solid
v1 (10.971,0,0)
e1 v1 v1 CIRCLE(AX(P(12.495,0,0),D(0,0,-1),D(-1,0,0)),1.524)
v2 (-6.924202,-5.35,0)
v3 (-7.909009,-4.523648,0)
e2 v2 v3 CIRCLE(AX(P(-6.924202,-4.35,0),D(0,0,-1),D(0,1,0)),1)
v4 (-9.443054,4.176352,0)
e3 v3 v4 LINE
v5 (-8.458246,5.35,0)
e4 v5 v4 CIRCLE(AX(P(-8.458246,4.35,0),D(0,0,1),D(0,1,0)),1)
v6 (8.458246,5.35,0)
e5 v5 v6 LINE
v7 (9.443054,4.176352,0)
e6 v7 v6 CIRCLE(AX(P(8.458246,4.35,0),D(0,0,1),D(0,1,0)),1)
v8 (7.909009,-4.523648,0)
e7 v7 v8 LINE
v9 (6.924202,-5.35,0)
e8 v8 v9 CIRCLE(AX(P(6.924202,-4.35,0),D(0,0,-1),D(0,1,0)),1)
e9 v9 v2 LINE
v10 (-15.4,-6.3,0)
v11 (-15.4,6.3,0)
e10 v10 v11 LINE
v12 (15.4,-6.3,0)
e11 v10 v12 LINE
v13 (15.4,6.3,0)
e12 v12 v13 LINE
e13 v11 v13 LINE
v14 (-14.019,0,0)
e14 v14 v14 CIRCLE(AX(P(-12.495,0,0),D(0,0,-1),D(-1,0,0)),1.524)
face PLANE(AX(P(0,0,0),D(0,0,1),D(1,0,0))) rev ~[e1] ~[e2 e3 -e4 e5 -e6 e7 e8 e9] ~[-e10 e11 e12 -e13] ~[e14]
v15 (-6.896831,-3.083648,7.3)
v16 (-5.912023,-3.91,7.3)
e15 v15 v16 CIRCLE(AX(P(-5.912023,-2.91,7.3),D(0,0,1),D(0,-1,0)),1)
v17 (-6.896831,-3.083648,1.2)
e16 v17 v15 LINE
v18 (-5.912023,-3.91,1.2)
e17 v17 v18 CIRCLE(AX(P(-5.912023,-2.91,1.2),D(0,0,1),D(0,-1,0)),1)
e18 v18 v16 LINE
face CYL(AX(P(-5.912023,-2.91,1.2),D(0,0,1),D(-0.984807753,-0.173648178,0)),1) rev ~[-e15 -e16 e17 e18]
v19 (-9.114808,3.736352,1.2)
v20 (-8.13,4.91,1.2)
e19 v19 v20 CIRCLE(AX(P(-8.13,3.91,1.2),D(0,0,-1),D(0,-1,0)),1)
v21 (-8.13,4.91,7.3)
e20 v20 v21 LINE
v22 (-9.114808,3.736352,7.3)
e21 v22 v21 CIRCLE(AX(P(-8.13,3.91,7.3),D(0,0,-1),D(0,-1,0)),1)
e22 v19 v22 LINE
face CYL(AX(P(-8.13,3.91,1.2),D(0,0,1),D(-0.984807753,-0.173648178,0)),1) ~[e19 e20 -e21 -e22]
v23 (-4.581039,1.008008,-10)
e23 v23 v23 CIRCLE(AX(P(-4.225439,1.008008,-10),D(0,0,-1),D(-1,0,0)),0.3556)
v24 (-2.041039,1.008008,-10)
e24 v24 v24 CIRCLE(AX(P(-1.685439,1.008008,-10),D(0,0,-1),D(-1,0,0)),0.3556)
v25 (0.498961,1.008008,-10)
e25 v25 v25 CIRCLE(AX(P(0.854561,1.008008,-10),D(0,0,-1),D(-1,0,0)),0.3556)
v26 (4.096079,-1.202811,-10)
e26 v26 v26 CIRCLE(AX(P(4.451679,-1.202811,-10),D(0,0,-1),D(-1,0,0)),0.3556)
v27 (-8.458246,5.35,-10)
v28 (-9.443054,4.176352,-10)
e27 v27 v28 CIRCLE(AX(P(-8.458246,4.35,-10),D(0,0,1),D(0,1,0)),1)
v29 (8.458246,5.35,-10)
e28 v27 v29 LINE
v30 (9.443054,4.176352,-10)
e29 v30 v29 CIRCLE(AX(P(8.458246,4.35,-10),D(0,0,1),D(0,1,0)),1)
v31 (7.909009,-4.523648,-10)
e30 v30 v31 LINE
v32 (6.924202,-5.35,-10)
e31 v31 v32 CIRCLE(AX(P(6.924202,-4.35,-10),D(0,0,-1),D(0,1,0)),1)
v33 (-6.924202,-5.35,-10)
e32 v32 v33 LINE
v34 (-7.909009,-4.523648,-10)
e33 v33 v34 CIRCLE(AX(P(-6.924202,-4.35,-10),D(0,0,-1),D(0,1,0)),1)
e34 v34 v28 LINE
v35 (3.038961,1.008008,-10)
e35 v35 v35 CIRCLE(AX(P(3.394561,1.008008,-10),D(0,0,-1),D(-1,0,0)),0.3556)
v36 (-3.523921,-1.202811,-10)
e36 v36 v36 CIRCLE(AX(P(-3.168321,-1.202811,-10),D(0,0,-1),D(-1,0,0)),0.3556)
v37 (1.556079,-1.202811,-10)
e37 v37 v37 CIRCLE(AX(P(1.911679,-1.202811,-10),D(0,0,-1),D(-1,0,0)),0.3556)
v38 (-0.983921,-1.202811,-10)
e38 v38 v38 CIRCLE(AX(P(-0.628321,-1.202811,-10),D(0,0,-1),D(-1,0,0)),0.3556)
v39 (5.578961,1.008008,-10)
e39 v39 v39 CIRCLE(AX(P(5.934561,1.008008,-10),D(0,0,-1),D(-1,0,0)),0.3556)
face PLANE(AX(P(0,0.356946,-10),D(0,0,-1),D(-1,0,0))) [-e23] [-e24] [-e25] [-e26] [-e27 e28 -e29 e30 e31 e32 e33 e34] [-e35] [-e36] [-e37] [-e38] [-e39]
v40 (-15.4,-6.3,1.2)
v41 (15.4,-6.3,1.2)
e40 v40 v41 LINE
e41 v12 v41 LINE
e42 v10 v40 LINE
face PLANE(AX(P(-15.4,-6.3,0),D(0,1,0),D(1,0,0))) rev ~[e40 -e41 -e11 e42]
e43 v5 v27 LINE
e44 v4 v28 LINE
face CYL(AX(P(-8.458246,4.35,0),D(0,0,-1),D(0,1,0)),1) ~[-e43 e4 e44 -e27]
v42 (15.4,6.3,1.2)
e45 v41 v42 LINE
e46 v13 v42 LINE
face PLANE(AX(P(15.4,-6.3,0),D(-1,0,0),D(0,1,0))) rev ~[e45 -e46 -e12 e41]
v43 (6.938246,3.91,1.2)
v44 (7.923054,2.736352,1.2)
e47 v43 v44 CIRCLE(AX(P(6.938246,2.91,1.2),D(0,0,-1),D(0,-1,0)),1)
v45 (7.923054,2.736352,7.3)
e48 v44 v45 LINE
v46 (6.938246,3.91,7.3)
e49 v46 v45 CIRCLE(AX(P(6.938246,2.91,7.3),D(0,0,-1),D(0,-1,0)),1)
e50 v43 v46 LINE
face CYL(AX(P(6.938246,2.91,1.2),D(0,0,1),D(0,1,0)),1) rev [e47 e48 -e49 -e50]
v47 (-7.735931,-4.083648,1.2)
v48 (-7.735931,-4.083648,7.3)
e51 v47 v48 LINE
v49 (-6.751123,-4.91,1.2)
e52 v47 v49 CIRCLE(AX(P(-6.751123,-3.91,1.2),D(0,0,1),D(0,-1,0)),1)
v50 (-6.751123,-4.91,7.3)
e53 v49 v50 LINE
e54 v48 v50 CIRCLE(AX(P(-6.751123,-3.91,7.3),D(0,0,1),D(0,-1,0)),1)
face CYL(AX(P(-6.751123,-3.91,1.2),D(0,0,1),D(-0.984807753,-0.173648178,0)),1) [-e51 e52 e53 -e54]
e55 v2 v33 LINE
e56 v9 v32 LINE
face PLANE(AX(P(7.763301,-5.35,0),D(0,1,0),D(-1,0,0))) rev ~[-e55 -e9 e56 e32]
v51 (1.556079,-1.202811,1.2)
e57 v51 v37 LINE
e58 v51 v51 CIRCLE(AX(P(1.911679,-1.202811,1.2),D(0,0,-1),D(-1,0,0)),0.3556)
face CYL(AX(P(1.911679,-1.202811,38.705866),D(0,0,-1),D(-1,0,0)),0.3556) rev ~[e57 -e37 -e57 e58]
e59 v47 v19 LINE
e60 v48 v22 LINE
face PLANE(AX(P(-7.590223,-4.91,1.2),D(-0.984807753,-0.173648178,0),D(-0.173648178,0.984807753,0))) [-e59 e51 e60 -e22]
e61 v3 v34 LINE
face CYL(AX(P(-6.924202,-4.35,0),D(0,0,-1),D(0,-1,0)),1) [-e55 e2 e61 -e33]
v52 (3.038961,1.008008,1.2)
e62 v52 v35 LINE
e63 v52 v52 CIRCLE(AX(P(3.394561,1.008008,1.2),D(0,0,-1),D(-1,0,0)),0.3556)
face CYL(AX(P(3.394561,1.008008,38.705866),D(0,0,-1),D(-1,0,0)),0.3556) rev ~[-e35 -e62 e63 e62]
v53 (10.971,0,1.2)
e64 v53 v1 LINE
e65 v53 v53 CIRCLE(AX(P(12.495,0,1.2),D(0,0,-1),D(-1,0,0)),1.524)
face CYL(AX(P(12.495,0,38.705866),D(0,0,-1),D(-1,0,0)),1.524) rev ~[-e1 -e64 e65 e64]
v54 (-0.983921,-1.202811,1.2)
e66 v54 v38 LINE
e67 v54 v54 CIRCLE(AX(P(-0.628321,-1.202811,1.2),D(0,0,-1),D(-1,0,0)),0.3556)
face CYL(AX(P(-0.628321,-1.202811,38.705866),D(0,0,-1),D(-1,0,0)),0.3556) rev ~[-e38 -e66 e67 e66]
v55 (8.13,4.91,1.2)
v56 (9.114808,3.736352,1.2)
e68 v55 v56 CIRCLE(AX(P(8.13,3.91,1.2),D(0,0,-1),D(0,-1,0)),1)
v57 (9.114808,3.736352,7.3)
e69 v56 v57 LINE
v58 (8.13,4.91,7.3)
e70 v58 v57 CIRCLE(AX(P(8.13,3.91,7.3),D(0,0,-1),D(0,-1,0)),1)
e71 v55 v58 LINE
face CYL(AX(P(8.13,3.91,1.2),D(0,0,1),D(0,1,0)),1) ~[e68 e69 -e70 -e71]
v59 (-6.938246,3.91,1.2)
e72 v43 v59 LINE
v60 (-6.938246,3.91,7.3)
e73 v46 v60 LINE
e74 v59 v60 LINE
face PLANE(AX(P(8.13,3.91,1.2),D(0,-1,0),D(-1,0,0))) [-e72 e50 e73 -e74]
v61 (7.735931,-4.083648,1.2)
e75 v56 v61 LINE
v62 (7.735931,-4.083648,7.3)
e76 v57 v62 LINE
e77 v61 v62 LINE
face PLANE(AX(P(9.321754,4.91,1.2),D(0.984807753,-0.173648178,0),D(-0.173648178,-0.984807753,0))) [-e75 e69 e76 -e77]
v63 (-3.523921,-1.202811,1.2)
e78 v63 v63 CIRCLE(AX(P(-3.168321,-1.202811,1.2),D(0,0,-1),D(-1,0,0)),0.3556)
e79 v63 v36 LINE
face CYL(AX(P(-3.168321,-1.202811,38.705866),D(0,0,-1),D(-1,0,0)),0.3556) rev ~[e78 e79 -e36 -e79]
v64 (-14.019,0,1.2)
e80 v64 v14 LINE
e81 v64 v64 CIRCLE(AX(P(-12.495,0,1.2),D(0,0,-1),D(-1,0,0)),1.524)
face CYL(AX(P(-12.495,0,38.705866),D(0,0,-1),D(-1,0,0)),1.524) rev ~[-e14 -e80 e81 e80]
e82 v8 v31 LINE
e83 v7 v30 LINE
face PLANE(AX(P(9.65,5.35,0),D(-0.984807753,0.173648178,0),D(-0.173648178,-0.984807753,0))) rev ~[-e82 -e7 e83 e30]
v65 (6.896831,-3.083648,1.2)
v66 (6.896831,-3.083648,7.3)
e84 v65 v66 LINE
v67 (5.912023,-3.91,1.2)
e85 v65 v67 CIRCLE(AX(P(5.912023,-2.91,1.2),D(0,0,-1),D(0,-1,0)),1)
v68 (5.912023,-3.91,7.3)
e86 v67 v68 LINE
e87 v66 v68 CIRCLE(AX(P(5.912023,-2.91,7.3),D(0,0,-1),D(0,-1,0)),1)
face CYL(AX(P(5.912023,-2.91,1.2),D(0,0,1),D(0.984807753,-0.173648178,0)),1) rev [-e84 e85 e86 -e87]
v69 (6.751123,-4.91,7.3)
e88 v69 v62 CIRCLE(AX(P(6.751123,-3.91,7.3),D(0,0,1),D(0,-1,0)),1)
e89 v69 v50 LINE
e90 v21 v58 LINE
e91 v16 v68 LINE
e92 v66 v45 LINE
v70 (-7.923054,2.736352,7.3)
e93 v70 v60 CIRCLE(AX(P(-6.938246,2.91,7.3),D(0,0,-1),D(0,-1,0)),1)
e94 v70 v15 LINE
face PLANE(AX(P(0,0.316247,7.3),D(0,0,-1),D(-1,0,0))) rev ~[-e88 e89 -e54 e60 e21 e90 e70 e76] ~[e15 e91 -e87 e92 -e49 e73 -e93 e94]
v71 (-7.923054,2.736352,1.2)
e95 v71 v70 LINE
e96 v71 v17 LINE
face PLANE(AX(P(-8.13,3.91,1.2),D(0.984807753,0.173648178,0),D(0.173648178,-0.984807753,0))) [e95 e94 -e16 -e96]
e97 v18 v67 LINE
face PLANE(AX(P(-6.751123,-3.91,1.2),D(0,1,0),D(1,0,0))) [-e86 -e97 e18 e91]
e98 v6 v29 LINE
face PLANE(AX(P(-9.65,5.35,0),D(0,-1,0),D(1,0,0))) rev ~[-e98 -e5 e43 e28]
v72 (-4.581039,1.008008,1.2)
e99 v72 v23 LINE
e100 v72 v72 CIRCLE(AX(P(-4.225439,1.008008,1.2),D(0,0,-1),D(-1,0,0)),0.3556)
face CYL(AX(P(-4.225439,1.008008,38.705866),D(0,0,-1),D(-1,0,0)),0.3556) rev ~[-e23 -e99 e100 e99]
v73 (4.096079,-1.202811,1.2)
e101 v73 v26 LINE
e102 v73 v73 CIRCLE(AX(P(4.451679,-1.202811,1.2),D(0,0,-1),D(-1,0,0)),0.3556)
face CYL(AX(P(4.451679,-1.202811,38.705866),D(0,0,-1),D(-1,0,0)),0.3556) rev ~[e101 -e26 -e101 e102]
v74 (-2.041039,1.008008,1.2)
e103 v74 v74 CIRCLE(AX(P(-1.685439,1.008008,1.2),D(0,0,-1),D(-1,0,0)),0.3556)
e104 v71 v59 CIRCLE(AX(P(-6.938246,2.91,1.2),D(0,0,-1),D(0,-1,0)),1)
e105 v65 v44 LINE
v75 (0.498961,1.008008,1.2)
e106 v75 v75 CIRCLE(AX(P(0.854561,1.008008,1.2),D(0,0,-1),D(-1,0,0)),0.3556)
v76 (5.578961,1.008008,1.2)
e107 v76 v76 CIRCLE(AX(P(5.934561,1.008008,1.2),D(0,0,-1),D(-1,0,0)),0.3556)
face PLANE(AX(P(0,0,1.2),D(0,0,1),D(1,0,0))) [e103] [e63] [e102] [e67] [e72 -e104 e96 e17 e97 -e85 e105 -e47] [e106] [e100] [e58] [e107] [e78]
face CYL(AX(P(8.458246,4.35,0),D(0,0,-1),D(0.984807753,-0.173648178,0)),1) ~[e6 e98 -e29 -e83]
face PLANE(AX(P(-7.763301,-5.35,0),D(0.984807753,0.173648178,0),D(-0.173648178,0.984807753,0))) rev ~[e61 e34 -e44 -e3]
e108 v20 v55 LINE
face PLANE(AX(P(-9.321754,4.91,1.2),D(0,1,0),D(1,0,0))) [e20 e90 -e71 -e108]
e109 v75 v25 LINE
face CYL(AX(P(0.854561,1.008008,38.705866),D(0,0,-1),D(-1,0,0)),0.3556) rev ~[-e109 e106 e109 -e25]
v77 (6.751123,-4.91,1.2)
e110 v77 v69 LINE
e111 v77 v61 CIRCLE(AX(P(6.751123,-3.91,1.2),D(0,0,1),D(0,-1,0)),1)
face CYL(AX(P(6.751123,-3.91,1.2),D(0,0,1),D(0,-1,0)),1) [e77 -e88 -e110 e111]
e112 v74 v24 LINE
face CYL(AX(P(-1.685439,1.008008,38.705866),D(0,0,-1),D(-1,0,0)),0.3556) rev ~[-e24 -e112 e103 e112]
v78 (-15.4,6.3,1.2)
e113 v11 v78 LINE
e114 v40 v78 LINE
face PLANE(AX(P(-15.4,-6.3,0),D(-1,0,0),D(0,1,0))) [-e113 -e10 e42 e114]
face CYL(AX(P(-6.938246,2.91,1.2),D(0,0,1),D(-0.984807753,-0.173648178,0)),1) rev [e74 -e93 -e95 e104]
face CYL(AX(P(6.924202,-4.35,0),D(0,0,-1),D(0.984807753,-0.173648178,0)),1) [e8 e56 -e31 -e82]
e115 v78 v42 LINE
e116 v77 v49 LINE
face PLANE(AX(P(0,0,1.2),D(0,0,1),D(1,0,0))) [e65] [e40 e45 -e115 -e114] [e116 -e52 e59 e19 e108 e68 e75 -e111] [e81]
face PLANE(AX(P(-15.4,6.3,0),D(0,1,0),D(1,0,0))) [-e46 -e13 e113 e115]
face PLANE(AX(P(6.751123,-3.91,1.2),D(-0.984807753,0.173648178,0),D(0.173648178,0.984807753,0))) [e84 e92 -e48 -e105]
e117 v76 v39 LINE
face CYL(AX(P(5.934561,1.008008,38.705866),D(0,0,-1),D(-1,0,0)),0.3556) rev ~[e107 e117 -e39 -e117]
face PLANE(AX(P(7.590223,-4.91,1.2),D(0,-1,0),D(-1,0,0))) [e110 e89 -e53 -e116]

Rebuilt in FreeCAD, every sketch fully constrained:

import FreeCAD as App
import Part
import Sketcher

V = App.Vector
Q = App.Units.Quantity


def edges_at(feature, points):
    """Names of the edges that pass closest to the given points."""
    edges = feature.Shape.Edges
    near = lambda p: min(range(len(edges)), key=lambda i: edges[i].distToShape(Part.Vertex(*p))[0])
    return sorted({f"Edge{near(p) + 1}" for p in points})

doc = App.newDocument("Part")
params = doc.addObject("Spreadsheet::Sheet", "Params")
for row, (alias, value) in enumerate([
    ("sketch1_width", "30.8 mm"),
    ("sketch1_height", "12.6 mm"),
    ("pad1_length", "1.2 mm"),
    ("sketch2_width", "16.26 mm"),
    ("pad2_length", "6.1 mm"),
    ("sketch3_width", "19.3 mm"),
    ("pad3_length", "10 mm"),
    ("hole_diameter", "0.7112 mm"),
    ("hole2_diameter", "0.7112 mm"),
    ("linearpattern_pitch", "2.54 mm"),
    ("linearpattern2_pitch", "2.54 mm"),
    ("hole3_diameter", "3.048 mm"),
    ("fillet_radius", "1 mm"),
], start=1):
    params.set(f"A{row}", alias)
    params.set(f"B{row}", "=" + value)
    params.setAlias(f"B{row}", alias)

body = doc.addObject("PartDesign::Body", "Body")

# Sketch on XY plane
sketch1 = doc.addObject("Sketcher::SketchObject", "Sketch")
body.addObject(sketch1)
sketch1.AttachmentSupport = (doc.XY_Plane, [""])
sketch1.MapMode = "FlatFace"
sketch1.addGeometry([
    Part.LineSegment(V(-15, 6, 0), V(-15, -6, 0)),
    Part.LineSegment(V(-15, -6, 0), V(15, -6, 0)),
    Part.LineSegment(V(15, -6, 0), V(15, 6, 0)),
    Part.LineSegment(V(15, 6, 0), V(-15, 6, 0)),
], False)
sketch1.addConstraint([
    Sketcher.Constraint("Coincident", 0, 2, 1, 1),
    Sketcher.Constraint("Coincident", 1, 2, 2, 1),
    Sketcher.Constraint("Coincident", 2, 2, 3, 1),
    Sketcher.Constraint("Coincident", 3, 2, 0, 1),
    Sketcher.Constraint("Vertical", 0),
    Sketcher.Constraint("Horizontal", 1),
    Sketcher.Constraint("Vertical", 2),
    Sketcher.Constraint("Horizontal", 3),
    Sketcher.Constraint("Symmetric", 0, 2, 2, 2, -1, 1),
    Sketcher.Constraint("DistanceX", 1, 1, 1, 2, Q("30.8 mm")),
    Sketcher.Constraint("DistanceY", 0, 2, 0, 1, Q("12.6 mm")),
])
sketch1.setExpression("Constraints[9]", "Params.sketch1_width")
sketch1.setExpression("Constraints[10]", "Params.sketch1_height")
pad1 = doc.addObject("PartDesign::Pad", "Pad")
body.addObject(pad1)
pad1.Profile = sketch1
pad1.setExpression("Length", "Params.pad1_length")

# Sketch on XY plane
sketch2 = doc.addObject("Sketcher::SketchObject", "Sketch001")
body.addObject(sketch2)
sketch2.AttachmentSupport = (doc.XY_Plane, [""])
sketch2.MapMode = "FlatFace"
sketch2.AttachmentOffset = App.Placement(V(0, 0, 1.2), App.Rotation())
sketch2.addGeometry([
    Part.LineSegment(V(9, 5, 0), V(-9, 5, 0)),  # 0
    Part.LineSegment(V(-9, 5, 0), V(-8, -5, 0)),  # 1
    Part.LineSegment(V(-8, -5, 0), V(8, -5, 0)),  # 2
    Part.LineSegment(V(8, -5, 0), V(9, 5, 0)),  # 3
    Part.LineSegment(V(-7, -4, 0), V(-8, 4, 0)),  # 4
    Part.LineSegment(V(-8, 4, 0), V(8, 4, 0)),  # 5
    Part.LineSegment(V(8, 4, 0), V(7, -4, 0)),  # 6
    Part.LineSegment(V(7, -4, 0), V(-7, -4, 0)),  # 7
], False)
sketch2.addConstraint([
    Sketcher.Constraint("Coincident", 0, 2, 1, 1),
    Sketcher.Constraint("Coincident", 1, 2, 2, 1),
    Sketcher.Constraint("Coincident", 2, 2, 3, 1),
    Sketcher.Constraint("Coincident", 3, 2, 0, 1),
    Sketcher.Constraint("Coincident", 4, 2, 5, 1),
    Sketcher.Constraint("Coincident", 5, 2, 6, 1),
    Sketcher.Constraint("Coincident", 6, 2, 7, 1),
    Sketcher.Constraint("Coincident", 7, 2, 4, 1),
    Sketcher.Constraint("Horizontal", 0),
    Sketcher.Constraint("Horizontal", 2),
    Sketcher.Constraint("Horizontal", 5),
    Sketcher.Constraint("Horizontal", 7),
    Sketcher.Constraint("Parallel", 1, 4),
    Sketcher.Constraint("Parallel", 3, 6),
    Sketcher.Constraint("Equal", 1, 3),
    Sketcher.Constraint("Angle", 1, Q("-80 deg")),
    Sketcher.Constraint("DistanceY", 4, 2, 0, 2, Q("1 mm")),
    Sketcher.Constraint("DistanceY", 2, 2, 6, 2, Q("1 mm")),
    Sketcher.Constraint("DistanceX", 5, 1, 5, 2, Q("16.26 mm")),
    Sketcher.Constraint("DistanceY", -1, 1, 0, 2, Q("4.91 mm")),
    Sketcher.Constraint("DistanceY", 1, 2, -1, 1, Q("4.91 mm")),
    Sketcher.Constraint("DistanceX", 4, 2, -1, 1, Q("8.13 mm")),
    Sketcher.Constraint("DistanceX", 6, 2, 2, 2, Q("0.8391 mm")),
    Sketcher.Constraint("DistanceX", 1, 2, 7, 2, Q("0.8391 mm")),
])
sketch2.setExpression("Constraints[18]", "Params.sketch2_width")
pad2 = doc.addObject("PartDesign::Pad", "Pad001")
body.addObject(pad2)
pad2.Profile = sketch2
pad2.setExpression("Length", "Params.pad2_length")

# Sketch on XY plane
sketch3 = doc.addObject("Sketcher::SketchObject", "Sketch002")
body.addObject(sketch3)
sketch3.AttachmentSupport = (doc.XY_Plane, [""])
sketch3.MapMode = "FlatFace"
sketch3.addGeometry([
    Part.LineSegment(V(8, -5, 0), V(-8, -5, 0)),
    Part.LineSegment(V(-8, -5, 0), V(-10, 5, 0)),
    Part.LineSegment(V(-10, 5, 0), V(10, 5, 0)),
    Part.LineSegment(V(10, 5, 0), V(8, -5, 0)),
], False)
sketch3.addConstraint([
    Sketcher.Constraint("Coincident", 0, 2, 1, 1),
    Sketcher.Constraint("Coincident", 1, 2, 2, 1),
    Sketcher.Constraint("Coincident", 2, 2, 3, 1),
    Sketcher.Constraint("Coincident", 3, 2, 0, 1),
    Sketcher.Constraint("Horizontal", 0),
    Sketcher.Constraint("Horizontal", 2),
    Sketcher.Constraint("Equal", 1, 3),
    Sketcher.Constraint("Angle", 1, Q("100 deg")),
    Sketcher.Constraint("DistanceX", 2, 1, 2, 2, Q("19.3 mm")),
    Sketcher.Constraint("DistanceY", 0, 2, 1, 2, Q("10.7 mm")),
    Sketcher.Constraint("DistanceY", 0, 2, -1, 1, Q("5.35 mm")),
    Sketcher.Constraint("DistanceX", 1, 2, -1, 1, Q("9.65 mm")),
])
sketch3.setExpression("Constraints[8]", "Params.sketch3_width")
pad3 = doc.addObject("PartDesign::Pad", "Pad002")
body.addObject(pad3)
pad3.Profile = sketch3
pad3.setExpression("Length", "Params.pad3_length")
pad3.Reversed = True

# Sketch on XY plane
sketch4 = doc.addObject("Sketcher::SketchObject", "Sketch003")
body.addObject(sketch4)
sketch4.AttachmentSupport = (doc.XY_Plane, [""])
sketch4.MapMode = "FlatFace"
sketch4.AttachmentOffset = App.Placement(V(0, 0, 1.2), App.Rotation())
sketch4.addGeometry(Part.Circle(V(-4.23, 1.01, 0), V(0, 0, 1), 0.36), False)
sketch4.addConstraint([
    Sketcher.Constraint("Diameter", 0, Q("0.7112 mm")),
    Sketcher.Constraint("DistanceX", 0, 3, -1, 1, Q("4.225439 mm")),
    Sketcher.Constraint("DistanceY", -1, 1, 0, 3, Q("1.008008 mm")),
])
doc.recompute()
hole = doc.addObject("PartDesign::Hole", "Hole")
body.addObject(hole)
hole.Profile = sketch4
hole.ThreadType = "None"
hole.setExpression("Diameter", "Params.hole_diameter")
hole.DepthType = "ThroughAll"

# Sketch on XY plane
sketch5 = doc.addObject("Sketcher::SketchObject", "Sketch004")
body.addObject(sketch5)
sketch5.AttachmentSupport = (doc.XY_Plane, [""])
sketch5.MapMode = "FlatFace"
sketch5.AttachmentOffset = App.Placement(V(0, 0, 1.2), App.Rotation())
sketch5.addGeometry(Part.Circle(V(-3.17, -1.2, 0), V(0, 0, 1), 0.36), False)
sketch5.addConstraint([
    Sketcher.Constraint("Diameter", 0, Q("0.7112 mm")),
    Sketcher.Constraint("DistanceX", 0, 3, -1, 1, Q("3.168321 mm")),
    Sketcher.Constraint("DistanceY", 0, 3, -1, 1, Q("1.202811 mm")),
])
doc.recompute()
hole2 = doc.addObject("PartDesign::Hole", "Hole001")
body.addObject(hole2)
hole2.Profile = sketch5
hole2.ThreadType = "None"
hole2.setExpression("Diameter", "Params.hole2_diameter")
hole2.DepthType = "ThroughAll"
doc.recompute()

linearpattern = doc.addObject("PartDesign::LinearPattern", "LinearPattern")
body.addObject(linearpattern)
linearpattern.Originals = [hole]
linearpattern.Direction = (doc.X_Axis, [""])
linearpattern.Mode = "offset"
linearpattern.setExpression("Offset", "Params.linearpattern_pitch")
linearpattern.Occurrences = 5
body.Tip = linearpattern
doc.recompute()

linearpattern2 = doc.addObject("PartDesign::LinearPattern", "LinearPattern001")
body.addObject(linearpattern2)
linearpattern2.Originals = [hole2]
linearpattern2.Direction = (doc.X_Axis, [""])
linearpattern2.Mode = "offset"
linearpattern2.setExpression("Offset", "Params.linearpattern2_pitch")
linearpattern2.Occurrences = 4
body.Tip = linearpattern2

# Sketch on XY plane
sketch6 = doc.addObject("Sketcher::SketchObject", "Sketch005")
body.addObject(sketch6)
sketch6.AttachmentSupport = (doc.XY_Plane, [""])
sketch6.MapMode = "FlatFace"
sketch6.AttachmentOffset = App.Placement(V(0, 0, 1.2), App.Rotation())
sketch6.addGeometry([
    Part.Circle(V(-12.5, 0, 0), V(0, 0, 1), 1.5),
    Part.Circle(V(12.5, 0, 0), V(0, 0, 1), 1.5),
], False)
sketch6.addConstraint([
    Sketcher.Constraint("Equal", 0, 1),
    Sketcher.Constraint("Symmetric", 0, 3, 1, 3, -1, 1),
    Sketcher.Constraint("PointOnObject", 0, 3, -1),
    Sketcher.Constraint("Diameter", 0, Q("3.048 mm")),
    Sketcher.Constraint("DistanceX", 0, 3, 1, 3, Q("24.99 mm")),
])
doc.recompute()
hole3 = doc.addObject("PartDesign::Hole", "Hole002")
body.addObject(hole3)
hole3.Profile = sketch6
hole3.ThreadType = "None"
hole3.setExpression("Diameter", "Params.hole3_diameter")
hole3.DepthType = "ThroughAll"
doc.recompute()

fillet = doc.addObject("PartDesign::Fillet", "Fillet")
body.addObject(fillet)
fillet.Base = (hole3, edges_at(hole3, [
    (-9.322, 4.91, 4.25),
    (-7.59, -4.91, 4.25),
    (7.59, -4.91, 4.25),
    (9.322, 4.91, 4.25),
    (8.13, 3.91, 4.25),
    (-8.13, 3.91, 4.25),
    (-6.751, -3.91, 4.25),
    (6.751, -3.91, 4.25),
    (-7.763, -5.35, -5),
    (-9.65, 5.35, -5),
    (9.65, 5.35, -5),
    (7.763, -5.35, -5),
]))
fillet.setExpression("Radius", "Params.fillet_radius")

doc.recompute()
